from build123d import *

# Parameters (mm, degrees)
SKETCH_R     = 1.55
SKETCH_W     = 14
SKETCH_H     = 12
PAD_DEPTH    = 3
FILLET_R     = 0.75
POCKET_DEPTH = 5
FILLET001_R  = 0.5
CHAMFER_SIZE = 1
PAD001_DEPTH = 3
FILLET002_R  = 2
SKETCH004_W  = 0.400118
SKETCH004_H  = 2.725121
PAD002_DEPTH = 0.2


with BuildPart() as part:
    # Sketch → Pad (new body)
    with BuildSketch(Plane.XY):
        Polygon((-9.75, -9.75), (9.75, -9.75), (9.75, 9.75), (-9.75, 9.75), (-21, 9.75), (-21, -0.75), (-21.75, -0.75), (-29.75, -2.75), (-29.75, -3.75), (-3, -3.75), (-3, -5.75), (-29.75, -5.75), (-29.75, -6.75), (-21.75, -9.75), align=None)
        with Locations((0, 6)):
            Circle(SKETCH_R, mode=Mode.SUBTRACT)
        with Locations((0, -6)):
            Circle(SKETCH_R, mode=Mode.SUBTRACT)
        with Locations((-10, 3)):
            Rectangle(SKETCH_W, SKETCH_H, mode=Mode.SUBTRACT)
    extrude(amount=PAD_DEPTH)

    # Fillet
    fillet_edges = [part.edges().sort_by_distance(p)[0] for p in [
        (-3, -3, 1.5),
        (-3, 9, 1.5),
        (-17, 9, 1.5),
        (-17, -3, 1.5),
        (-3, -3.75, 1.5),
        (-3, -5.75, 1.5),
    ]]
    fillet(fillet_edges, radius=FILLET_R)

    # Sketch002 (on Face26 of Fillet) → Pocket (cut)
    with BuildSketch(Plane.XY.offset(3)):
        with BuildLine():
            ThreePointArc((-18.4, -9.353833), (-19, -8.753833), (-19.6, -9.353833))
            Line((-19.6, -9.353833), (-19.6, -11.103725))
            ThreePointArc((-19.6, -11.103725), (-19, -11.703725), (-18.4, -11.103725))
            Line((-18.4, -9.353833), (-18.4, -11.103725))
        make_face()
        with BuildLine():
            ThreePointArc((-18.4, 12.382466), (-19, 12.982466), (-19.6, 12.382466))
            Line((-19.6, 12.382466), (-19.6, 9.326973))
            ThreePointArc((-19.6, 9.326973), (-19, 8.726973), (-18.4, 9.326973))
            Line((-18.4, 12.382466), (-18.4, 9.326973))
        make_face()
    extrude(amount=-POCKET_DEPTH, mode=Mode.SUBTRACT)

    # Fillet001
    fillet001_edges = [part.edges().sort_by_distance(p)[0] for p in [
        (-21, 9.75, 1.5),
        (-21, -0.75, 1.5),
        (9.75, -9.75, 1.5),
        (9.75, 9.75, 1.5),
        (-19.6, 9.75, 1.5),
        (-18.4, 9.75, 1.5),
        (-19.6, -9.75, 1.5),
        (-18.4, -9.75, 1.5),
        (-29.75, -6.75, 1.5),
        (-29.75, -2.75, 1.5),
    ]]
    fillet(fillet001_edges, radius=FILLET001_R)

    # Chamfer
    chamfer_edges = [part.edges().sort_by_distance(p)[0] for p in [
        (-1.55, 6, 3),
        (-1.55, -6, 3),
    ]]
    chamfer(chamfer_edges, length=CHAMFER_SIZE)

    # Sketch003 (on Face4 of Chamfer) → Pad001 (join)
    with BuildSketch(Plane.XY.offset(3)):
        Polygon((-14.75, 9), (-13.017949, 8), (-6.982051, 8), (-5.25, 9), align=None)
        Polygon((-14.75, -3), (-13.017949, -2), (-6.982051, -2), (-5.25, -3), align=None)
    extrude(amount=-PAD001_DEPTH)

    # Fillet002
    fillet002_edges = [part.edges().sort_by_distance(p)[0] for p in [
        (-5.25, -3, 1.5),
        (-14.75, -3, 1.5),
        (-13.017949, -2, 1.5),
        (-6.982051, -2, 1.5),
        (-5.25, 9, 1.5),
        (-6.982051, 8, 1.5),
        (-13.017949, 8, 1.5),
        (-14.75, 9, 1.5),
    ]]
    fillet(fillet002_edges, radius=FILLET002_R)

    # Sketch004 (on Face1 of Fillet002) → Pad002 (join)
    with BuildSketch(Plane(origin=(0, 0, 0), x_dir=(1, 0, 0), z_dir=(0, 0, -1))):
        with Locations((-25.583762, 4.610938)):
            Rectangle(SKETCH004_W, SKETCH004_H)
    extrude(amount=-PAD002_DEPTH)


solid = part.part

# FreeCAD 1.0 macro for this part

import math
import FreeCAD as App
import Part
import Sketcher
Q = App.Units.Quantity


def edges_at(feature, points):
    """Names of the edges that pass closest to the given points."""
    edges = feature.Shape.Edges
    near = lambda p: min(range(len(edges)), key=lambda i: edges[i].distToShape(Part.Vertex(*p))[0])
    return sorted({f"Edge{near(p) + 1}" for p in points})


def add_polygon(sketch, points):
    """Adds a closed chain of lines whose ends are joined by coincident constraints."""
    first, n = sketch.GeometryCount, len(points)
    for a, b in zip(points, points[1:] + points[:1]):
        sketch.addGeometry(Part.LineSegment(App.Vector(*a, 0), App.Vector(*b, 0)), False)
    for i in range(n):
        sketch.addConstraint(Sketcher.Constraint("Coincident", first + i, 2, first + (i + 1) % n, 1))

doc = App.newDocument("Part")
body = doc.addObject("PartDesign::Body", "Body")

sketch1 = doc.addObject("Sketcher::SketchObject", "Sketch")
body.addObject(sketch1)
sketch1.AttachmentSupport = (doc.XY_Plane, [""])
sketch1.MapMode = "FlatFace"
add_polygon(sketch1, [(9.8, -9.8), (9.8, 9.8), (-21, 9.8), (-21, -0.8), (-21.8, -0.8), (-29.8, -2.8), (-29.8, -3.8), (-3, -3.8), (-3, -5.8), (-29.8, -5.8), (-29.8, -6.8), (-21.8, -9.8)])
sketch1.addGeometry(Part.Circle(App.Vector(0, -6, 0), App.Vector(0, 0, 1), 1.6), False)
add_polygon(sketch1, [(-3, -3), (-17, -3), (-17, 9), (-3, 9)])
sketch1.addGeometry(Part.Circle(App.Vector(0, 6, 0), App.Vector(0, 0, 1), 1.6), False)
sketch1.addConstraint(Sketcher.Constraint("Vertical", 0))
sketch1.addConstraint(Sketcher.Constraint("Horizontal", 1))
sketch1.addConstraint(Sketcher.Constraint("Vertical", 2))
sketch1.addConstraint(Sketcher.Constraint("Horizontal", 3))
sketch1.addConstraint(Sketcher.Constraint("Vertical", 5))
sketch1.addConstraint(Sketcher.Constraint("Horizontal", 6))
sketch1.addConstraint(Sketcher.Constraint("Vertical", 7))
sketch1.addConstraint(Sketcher.Constraint("Horizontal", 8))
sketch1.addConstraint(Sketcher.Constraint("Vertical", 9))
sketch1.addConstraint(Sketcher.Constraint("Horizontal", 11))
sketch1.addConstraint(Sketcher.Constraint("Horizontal", 13))
sketch1.addConstraint(Sketcher.Constraint("Vertical", 14))
sketch1.addConstraint(Sketcher.Constraint("Horizontal", 15))
sketch1.addConstraint(Sketcher.Constraint("Vertical", 16))
sketch1.addConstraint(Sketcher.Constraint("Equal", 12, 17))
sketch1.addConstraint(Sketcher.Constraint("Symmetric", 12, 3, 17, 3, -1, 1))
sketch1.addConstraint(Sketcher.Constraint("PointOnObject", 12, 3, -2))
sketch1.addConstraint(Sketcher.Constraint("Vertical", 5, 2, 8, 2))
sketch1.addConstraint(Sketcher.Constraint("Vertical", 3, 2, 10, 2))
sketch1.addConstraint(Sketcher.Constraint("Vertical", 7, 2, 15, 2))
sketch1.addConstraint(Sketcher.Constraint("Equal", 5, 9))
sketch1.addConstraint(Sketcher.Constraint("Diameter", 12, 3.1))
sketch1.addConstraint(Sketcher.Constraint("DistanceX", 13, 2, 13, 1, 14.0))
sketch1.addConstraint(Sketcher.Constraint("DistanceY", 5, 2, 5, 1, 1.0))
sketch1.addConstraint(Sketcher.Constraint("DistanceY", 7, 2, 7, 1, 2.0))
sketch1.addConstraint(Sketcher.Constraint("DistanceY", 14, 1, 14, 2, 12.0))
sketch1.addConstraint(Sketcher.Constraint("DistanceX", 11, 1, 11, 2, 31.5))
sketch1.addConstraint(Sketcher.Constraint("DistanceY", 0, 1, 0, 2, 19.5))
sketch1.addConstraint(Sketcher.Constraint("DistanceY", 2, 2, 2, 1, 10.5))
sketch1.addConstraint(Sketcher.Constraint("DistanceY", 12, 3, -1, 1, 6.0))
sketch1.addConstraint(Sketcher.Constraint("DistanceX", 1, 2, -1, 1, 21.0))
sketch1.addConstraint(Sketcher.Constraint("DistanceX", 6, 2, -1, 1, 3.0))
sketch1.addConstraint(Sketcher.Constraint("DistanceY", 13, 2, -1, 1, 3.0))
sketch1.addConstraint(Sketcher.Constraint("DistanceX", 4, 2, 3, 2, 8.0))
sketch1.addConstraint(Sketcher.Constraint("DistanceY", 4, 2, 3, 2, 2.0))
sketch1.addConstraint(Sketcher.Constraint("DistanceX", 1, 2, 1, 1, 30.75))
sketch1.addConstraint(Sketcher.Constraint("DistanceY", -1, 1, 0, 2, 9.75))
pad1 = doc.addObject("PartDesign::Pad", "Pad")
body.addObject(pad1)
pad1.Profile = sketch1
pad1.Length = 3
doc.recompute()

fillet = doc.addObject("PartDesign::Fillet", "Fillet")
body.addObject(fillet)
fillet.Base = (pad1, edges_at(pad1, [
    (-3, -3, 1.5),
    (-3, 9, 1.5),
    (-17, 9, 1.5),
    (-17, -3, 1.5),
    (-3, -3.75, 1.5),
    (-3, -5.75, 1.5),
]))
fillet.Radius = 0.75

sketch2 = doc.addObject("Sketcher::SketchObject", "Sketch001")
body.addObject(sketch2)
sketch2.AttachmentSupport = (doc.XY_Plane, [""])
sketch2.MapMode = "FlatFace"
sketch2.AttachmentOffset = App.Placement(App.Vector(0, 0, 3), App.Rotation())
sketch2.addGeometry(Part.ArcOfCircle(Part.Circle(App.Vector(-19, -9.4, 0), App.Vector(0, 0, 1), 0.6), math.radians(0), math.radians(180)), False)
sketch2.addGeometry(Part.LineSegment(App.Vector(-19.6, -9.4, 0), App.Vector(-19.6, -11.1, 0)), False)
sketch2.addGeometry(Part.ArcOfCircle(Part.Circle(App.Vector(-19, -11.1, 0), App.Vector(0, 0, 1), 0.6), math.radians(180), math.radians(360)), False)
sketch2.addGeometry(Part.LineSegment(App.Vector(-18.4, -11.1, 0), App.Vector(-18.4, -9.4, 0)), False)
sketch2.addGeometry(Part.ArcOfCircle(Part.Circle(App.Vector(-19, 12.4, 0), App.Vector(0, 0, 1), 0.6), math.radians(0), math.radians(180)), False)
sketch2.addGeometry(Part.LineSegment(App.Vector(-19.6, 12.4, 0), App.Vector(-19.6, 9.3, 0)), False)
sketch2.addGeometry(Part.ArcOfCircle(Part.Circle(App.Vector(-19, 9.3, 0), App.Vector(0, 0, 1), 0.6), math.radians(180), math.radians(360)), False)
sketch2.addGeometry(Part.LineSegment(App.Vector(-18.4, 9.3, 0), App.Vector(-18.4, 12.4, 0)), False)
sketch2.addConstraint(Sketcher.Constraint("Tangent", 0, 2, 1, 1))
sketch2.addConstraint(Sketcher.Constraint("Tangent", 1, 2, 2, 1))
sketch2.addConstraint(Sketcher.Constraint("Tangent", 2, 2, 3, 1))
sketch2.addConstraint(Sketcher.Constraint("Tangent", 3, 2, 0, 1))
sketch2.addConstraint(Sketcher.Constraint("Tangent", 4, 2, 5, 1))
sketch2.addConstraint(Sketcher.Constraint("Tangent", 5, 2, 6, 1))
sketch2.addConstraint(Sketcher.Constraint("Tangent", 6, 2, 7, 1))
sketch2.addConstraint(Sketcher.Constraint("Tangent", 7, 2, 4, 1))
sketch2.addConstraint(Sketcher.Constraint("Vertical", 1))
sketch2.addConstraint(Sketcher.Constraint("Vertical", 3))
sketch2.addConstraint(Sketcher.Constraint("Vertical", 5))
sketch2.addConstraint(Sketcher.Constraint("Vertical", 7))
sketch2.addConstraint(Sketcher.Constraint("Equal", 2, 4))
sketch2.addConstraint(Sketcher.Constraint("Vertical", 2, 3, 4, 3))
sketch2.addConstraint(Sketcher.Constraint("Radius", 0, 0.6))
sketch2.addConstraint(Sketcher.Constraint("DistanceX", 0, 3, -1, 1, 19.0))
sketch2.addConstraint(Sketcher.Constraint("DistanceY", 0, 3, 4, 3, 21.736299))
sketch2.addConstraint(Sketcher.Constraint("DistanceY", 1, 2, 1, 1, 1.749892))
sketch2.addConstraint(Sketcher.Constraint("DistanceY", 5, 2, 5, 1, 3.055493))
sketch2.addConstraint(Sketcher.Constraint("DistanceY", 0, 3, -1, 1, 9.353833))
pocket1 = doc.addObject("PartDesign::Pocket", "Pocket")
body.addObject(pocket1)
pocket1.Profile = sketch2
pocket1.Length = 5
doc.recompute()

fillet2 = doc.addObject("PartDesign::Fillet", "Fillet001")
body.addObject(fillet2)
fillet2.Base = (pocket1, edges_at(pocket1, [
    (-21, 9.75, 1.5),
    (-21, -0.75, 1.5),
    (9.75, -9.75, 1.5),
    (9.75, 9.75, 1.5),
    (-19.6, 9.75, 1.5),
    (-18.4, 9.75, 1.5),
    (-19.6, -9.75, 1.5),
    (-18.4, -9.75, 1.5),
    (-29.75, -6.75, 1.5),
    (-29.75, -2.75, 1.5),
]))
fillet2.Radius = 0.5
doc.recompute()

chamfer = doc.addObject("PartDesign::Chamfer", "Chamfer")
body.addObject(chamfer)
chamfer.Base = (fillet2, edges_at(fillet2, [(-1.55, 6, 3), (-1.55, -6, 3)]))
chamfer.Size = 1

sketch3 = doc.addObject("Sketcher::SketchObject", "Sketch002")
body.addObject(sketch3)
sketch3.AttachmentSupport = (doc.XY_Plane, [""])
sketch3.MapMode = "FlatFace"
sketch3.AttachmentOffset = App.Placement(App.Vector(0, 0, 3), App.Rotation())
add_polygon(sketch3, [(-14.8, 9), (-13, 8), (-7, 8), (-5.2, 9)])
add_polygon(sketch3, [(-13, -2), (-14.8, -3), (-5.2, -3), (-7, -2)])
sketch3.addConstraint(Sketcher.Constraint("Horizontal", 1))
sketch3.addConstraint(Sketcher.Constraint("Horizontal", 3))
sketch3.addConstraint(Sketcher.Constraint("Horizontal", 5))
sketch3.addConstraint(Sketcher.Constraint("Horizontal", 7))
sketch3.addConstraint(Sketcher.Constraint("Parallel", 2, 4))
sketch3.addConstraint(Sketcher.Constraint("Parallel", 0, 6))
sketch3.addConstraint(Sketcher.Constraint("Vertical", 3, 2, 4, 2))
sketch3.addConstraint(Sketcher.Constraint("Vertical", 2, 2, 5, 2))
sketch3.addConstraint(Sketcher.Constraint("Vertical", 1, 2, 6, 2))
sketch3.addConstraint(Sketcher.Constraint("Vertical", 0, 2, 7, 2))
sketch3.addConstraint(Sketcher.Constraint("Angle", 0, Q("-29.999997 deg")))
sketch3.addConstraint(Sketcher.Constraint("Distance", 0, 2.0))
sketch3.addConstraint(Sketcher.Constraint("DistanceX", 3, 2, 3, 1, 9.5))
sketch3.addConstraint(Sketcher.Constraint("DistanceY", -1, 1, 0, 2, 8.0))
sketch3.addConstraint(Sketcher.Constraint("DistanceY", 4, 2, -1, 1, 3.0))
sketch3.addConstraint(Sketcher.Constraint("DistanceX", 2, 2, -1, 1, 5.25))
pad2 = doc.addObject("PartDesign::Pad", "Pad001")
body.addObject(pad2)
pad2.Profile = sketch3
pad2.Length = 3
pad2.Reversed = True
doc.recompute()

fillet3 = doc.addObject("PartDesign::Fillet", "Fillet002")
body.addObject(fillet3)
fillet3.Base = (pad2, edges_at(pad2, [
    (-5.25, -3, 1.5),
    (-14.75, -3, 1.5),
    (-13.018, -2, 1.5),
    (-6.982, -2, 1.5),
    (-5.25, 9, 1.5),
    (-6.982, 8, 1.5),
    (-13.018, 8, 1.5),
    (-14.75, 9, 1.5),
]))
fillet3.Radius = 2

sketch4 = doc.addObject("Sketcher::SketchObject", "Sketch003")
body.addObject(sketch4)
sketch4.AttachmentSupport = (doc.XY_Plane, [""])
sketch4.MapMode = "FlatFace"
add_polygon(sketch4, [(-25.78, -5.97), (-25.78, -3.25), (-25.38, -3.25), (-25.38, -5.97)])
sketch4.addConstraint(Sketcher.Constraint("Vertical", 0))
sketch4.addConstraint(Sketcher.Constraint("Horizontal", 1))
sketch4.addConstraint(Sketcher.Constraint("Vertical", 2))
sketch4.addConstraint(Sketcher.Constraint("Horizontal", 3))
sketch4.addConstraint(Sketcher.Constraint("DistanceY", 0, 1, 0, 2, 2.725121))
sketch4.addConstraint(Sketcher.Constraint("DistanceY", 2, 2, -1, 1, 5.973498))
sketch4.addConstraint(Sketcher.Constraint("DistanceX", 1, 1, 1, 2, 0.400118))
sketch4.addConstraint(Sketcher.Constraint("DistanceX", 0, 2, -1, 1, 25.783821))
pad3 = doc.addObject("PartDesign::Pad", "Pad002")
body.addObject(pad3)
pad3.Profile = sketch4
pad3.Length = 0.2

doc.recompute()
